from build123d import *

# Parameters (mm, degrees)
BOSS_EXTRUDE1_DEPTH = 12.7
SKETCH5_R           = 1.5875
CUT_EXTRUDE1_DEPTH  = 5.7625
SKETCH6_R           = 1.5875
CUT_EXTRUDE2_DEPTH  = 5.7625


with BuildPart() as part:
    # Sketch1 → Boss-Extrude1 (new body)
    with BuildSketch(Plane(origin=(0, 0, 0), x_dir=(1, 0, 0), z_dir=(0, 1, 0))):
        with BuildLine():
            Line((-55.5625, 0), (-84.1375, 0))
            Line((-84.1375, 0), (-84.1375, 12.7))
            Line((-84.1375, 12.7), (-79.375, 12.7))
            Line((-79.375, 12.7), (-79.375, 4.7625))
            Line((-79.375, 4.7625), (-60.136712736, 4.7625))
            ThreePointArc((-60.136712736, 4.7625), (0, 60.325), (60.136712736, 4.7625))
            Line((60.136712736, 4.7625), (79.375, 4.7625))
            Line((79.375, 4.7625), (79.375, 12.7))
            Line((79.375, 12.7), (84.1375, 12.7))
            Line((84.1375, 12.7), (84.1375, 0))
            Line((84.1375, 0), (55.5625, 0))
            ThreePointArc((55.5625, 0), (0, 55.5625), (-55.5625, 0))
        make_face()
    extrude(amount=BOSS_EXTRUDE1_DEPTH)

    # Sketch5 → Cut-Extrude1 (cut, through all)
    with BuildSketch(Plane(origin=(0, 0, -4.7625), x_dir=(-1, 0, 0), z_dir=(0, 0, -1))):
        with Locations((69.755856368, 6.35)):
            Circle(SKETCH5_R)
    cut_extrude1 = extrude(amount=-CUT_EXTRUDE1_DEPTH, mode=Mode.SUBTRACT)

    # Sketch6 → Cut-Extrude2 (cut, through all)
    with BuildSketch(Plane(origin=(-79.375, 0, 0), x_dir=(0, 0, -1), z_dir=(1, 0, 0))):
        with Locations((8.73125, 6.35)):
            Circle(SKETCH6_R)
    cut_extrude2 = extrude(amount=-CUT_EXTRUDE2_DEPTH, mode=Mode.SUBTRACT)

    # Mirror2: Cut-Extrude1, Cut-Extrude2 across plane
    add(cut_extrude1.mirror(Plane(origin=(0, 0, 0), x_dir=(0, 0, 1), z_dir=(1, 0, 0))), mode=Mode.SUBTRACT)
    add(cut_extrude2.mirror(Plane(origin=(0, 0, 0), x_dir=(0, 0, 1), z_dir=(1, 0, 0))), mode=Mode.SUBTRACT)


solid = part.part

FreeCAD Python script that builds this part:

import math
import FreeCAD as App
import Part
import Sketcher
from FreeCAD import Vector
Q = App.Units.Quantity

doc = App.newDocument("Part")
body = doc.addObject("PartDesign::Body", "Body")

sketch1 = doc.addObject("Sketcher::SketchObject", "Sketch")
body.addObject(sketch1)
sketch1.AttachmentSupport = (doc.XZ_Plane, [""])
sketch1.MapMode = "FlatFace"
sketch1.addGeometry(Part.LineSegment(Vector(-84.1, 0, 0), Vector(-55.6, 0, 0)), False)
sketch1.addGeometry(Part.ArcOfCircle(Part.Circle(Vector(0, 0, 0), Vector(0, 0, 1), 55.6), math.radians(180), math.radians(360)), False)
sketch1.addGeometry(Part.LineSegment(Vector(55.6, 0, 0), Vector(84.1, 0, 0)), False)
sketch1.addGeometry(Part.LineSegment(Vector(84.1, 0, 0), Vector(84.1, -12.7, 0)), False)
sketch1.addGeometry(Part.LineSegment(Vector(84.1, -12.7, 0), Vector(79.4, -12.7, 0)), False)
sketch1.addGeometry(Part.LineSegment(Vector(79.4, -12.7, 0), Vector(79.4, -4.8, 0)), False)
sketch1.addGeometry(Part.LineSegment(Vector(79.4, -4.8, 0), Vector(60.1, -4.8, 0)), False)
sketch1.addGeometry(Part.ArcOfCircle(Part.Circle(Vector(0, 0, 0), Vector(0, 0, 1), 60.3), math.radians(-175), math.radians(-5)), False)
sketch1.addGeometry(Part.LineSegment(Vector(-60.1, -4.8, 0), Vector(-79.4, -4.8, 0)), False)
sketch1.addGeometry(Part.LineSegment(Vector(-79.4, -4.8, 0), Vector(-79.4, -12.7, 0)), False)
sketch1.addGeometry(Part.LineSegment(Vector(-79.4, -12.7, 0), Vector(-84.1, -12.7, 0)), False)
sketch1.addGeometry(Part.LineSegment(Vector(-84.1, -12.7, 0), Vector(-84.1, 0, 0)), False)
sketch1.addConstraint(Sketcher.Constraint("Coincident", 0, 2, 1, 1))
sketch1.addConstraint(Sketcher.Constraint("Coincident", 1, 2, 2, 1))
sketch1.addConstraint(Sketcher.Constraint("Coincident", 2, 2, 3, 1))
sketch1.addConstraint(Sketcher.Constraint("Coincident", 3, 2, 4, 1))
sketch1.addConstraint(Sketcher.Constraint("Coincident", 4, 2, 5, 1))
sketch1.addConstraint(Sketcher.Constraint("Coincident", 5, 2, 6, 1))
sketch1.addConstraint(Sketcher.Constraint("Coincident", 6, 2, 7, 2))
sketch1.addConstraint(Sketcher.Constraint("Coincident", 7, 1, 8, 1))
sketch1.addConstraint(Sketcher.Constraint("Coincident", 8, 2, 9, 1))
sketch1.addConstraint(Sketcher.Constraint("Coincident", 9, 2, 10, 1))
sketch1.addConstraint(Sketcher.Constraint("Coincident", 10, 2, 11, 1))
sketch1.addConstraint(Sketcher.Constraint("Coincident", 11, 2, 0, 1))
sketch1.addConstraint(Sketcher.Constraint("Horizontal", 0))
sketch1.addConstraint(Sketcher.Constraint("Horizontal", 2))
sketch1.addConstraint(Sketcher.Constraint("Vertical", 3))
sketch1.addConstraint(Sketcher.Constraint("Horizontal", 4))
sketch1.addConstraint(Sketcher.Constraint("Vertical", 5))
sketch1.addConstraint(Sketcher.Constraint("Horizontal", 6))
sketch1.addConstraint(Sketcher.Constraint("Horizontal", 8))
sketch1.addConstraint(Sketcher.Constraint("Vertical", 9))
sketch1.addConstraint(Sketcher.Constraint("Horizontal", 10))
sketch1.addConstraint(Sketcher.Constraint("Vertical", 11))
sketch1.addConstraint(Sketcher.Constraint("Coincident", 1, 3, -1, 1))
sketch1.addConstraint(Sketcher.Constraint("Coincident", 7, 3, -1, 1))
sketch1.addConstraint(Sketcher.Constraint("Symmetric", 2, 2, 11, 2, -1, 1))
sketch1.addConstraint(Sketcher.Constraint("Symmetric", 5, 2, 8, 2, -2))
sketch1.addConstraint(Sketcher.Constraint("PointOnObject", 0, 2, -1))
sketch1.addConstraint(Sketcher.Constraint("Horizontal", 4, 2, 9, 2))
sketch1.addConstraint(Sketcher.Constraint("DistanceY", 3, 2, 3, 1, Q("0.5 in")))
sketch1.addConstraint(Sketcher.Constraint("Radius", 1, Q("2.1875 in")))
sketch1.addConstraint(Sketcher.Constraint("Radius", 7, Q("2.375 in")))
sketch1.addConstraint(Sketcher.Constraint("DistanceX", 0, 2, 2, 2, Q("5.5 in")))
sketch1.addConstraint(Sketcher.Constraint("DistanceX", 4, 2, 4, 1, Q("0.1875 in")))
sketch1.addConstraint(Sketcher.Constraint("DistanceY", 5, 1, 5, 2, Q("0.3125 in")))
pad1 = doc.addObject("PartDesign::Pad", "Pad")
body.addObject(pad1)
pad1.Profile = sketch1
pad1.Length = Q("0.5 in")
pad1.Reversed = True

sketch2 = doc.addObject("Sketcher::SketchObject", "Sketch001")
body.addObject(sketch2)
sketch2.AttachmentSupport = (doc.XY_Plane, [""])
sketch2.MapMode = "FlatFace"
sketch2.AttachmentOffset = App.Placement(Vector(0, 0, -0.1875 * 25.4), App.Rotation())
sketch2.addGeometry(Part.Circle(Vector(-69.8, 6.3, 0), Vector(0, 0, 1), 1.6), False)
sketch2.addConstraint(Sketcher.Constraint("Diameter", 0, Q("0.125 in")))
sketch2.addConstraint(Sketcher.Constraint("DistanceY", -1, 1, 0, 3, Q("0.25 in")))
sketch2.addConstraint(Sketcher.Constraint("DistanceX", 0, 3, -1, 1, Q("69.755856 mm")))
pocket1 = doc.addObject("PartDesign::Pocket", "Pocket")
body.addObject(pocket1)
pocket1.Profile = sketch2
pocket1.Type = "ThroughAll"
pocket1.Reversed = True

sketch3 = doc.addObject("Sketcher::SketchObject", "Sketch002")
body.addObject(sketch3)
sketch3.AttachmentSupport = (doc.YZ_Plane, [""])
sketch3.MapMode = "FlatFace"
sketch3.AttachmentOffset = App.Placement(Vector(0, 0, -3.125 * 25.4), App.Rotation())
sketch3.addGeometry(Part.Circle(Vector(6.3, -8.7, 0), Vector(0, 0, 1), 1.6), False)
sketch3.addConstraint(Sketcher.Constraint("Diameter", 0, Q("0.125 in")))
sketch3.addConstraint(Sketcher.Constraint("DistanceX", -1, 1, 0, 3, Q("0.25 in")))
sketch3.addConstraint(Sketcher.Constraint("DistanceY", 0, 3, -1, 1, Q("0.34375 in")))
pocket2 = doc.addObject("PartDesign::Pocket", "Pocket001")
body.addObject(pocket2)
pocket2.Profile = sketch3
pocket2.Type = "ThroughAll"
doc.recompute()

mirrored = doc.addObject("PartDesign::Mirrored", "Mirrored")
body.addObject(mirrored)
mirrored.Originals = [pocket1, pocket2]
mirrored.MirrorPlane = (doc.YZ_Plane, [""])
body.Tip = mirrored

doc.recompute()
